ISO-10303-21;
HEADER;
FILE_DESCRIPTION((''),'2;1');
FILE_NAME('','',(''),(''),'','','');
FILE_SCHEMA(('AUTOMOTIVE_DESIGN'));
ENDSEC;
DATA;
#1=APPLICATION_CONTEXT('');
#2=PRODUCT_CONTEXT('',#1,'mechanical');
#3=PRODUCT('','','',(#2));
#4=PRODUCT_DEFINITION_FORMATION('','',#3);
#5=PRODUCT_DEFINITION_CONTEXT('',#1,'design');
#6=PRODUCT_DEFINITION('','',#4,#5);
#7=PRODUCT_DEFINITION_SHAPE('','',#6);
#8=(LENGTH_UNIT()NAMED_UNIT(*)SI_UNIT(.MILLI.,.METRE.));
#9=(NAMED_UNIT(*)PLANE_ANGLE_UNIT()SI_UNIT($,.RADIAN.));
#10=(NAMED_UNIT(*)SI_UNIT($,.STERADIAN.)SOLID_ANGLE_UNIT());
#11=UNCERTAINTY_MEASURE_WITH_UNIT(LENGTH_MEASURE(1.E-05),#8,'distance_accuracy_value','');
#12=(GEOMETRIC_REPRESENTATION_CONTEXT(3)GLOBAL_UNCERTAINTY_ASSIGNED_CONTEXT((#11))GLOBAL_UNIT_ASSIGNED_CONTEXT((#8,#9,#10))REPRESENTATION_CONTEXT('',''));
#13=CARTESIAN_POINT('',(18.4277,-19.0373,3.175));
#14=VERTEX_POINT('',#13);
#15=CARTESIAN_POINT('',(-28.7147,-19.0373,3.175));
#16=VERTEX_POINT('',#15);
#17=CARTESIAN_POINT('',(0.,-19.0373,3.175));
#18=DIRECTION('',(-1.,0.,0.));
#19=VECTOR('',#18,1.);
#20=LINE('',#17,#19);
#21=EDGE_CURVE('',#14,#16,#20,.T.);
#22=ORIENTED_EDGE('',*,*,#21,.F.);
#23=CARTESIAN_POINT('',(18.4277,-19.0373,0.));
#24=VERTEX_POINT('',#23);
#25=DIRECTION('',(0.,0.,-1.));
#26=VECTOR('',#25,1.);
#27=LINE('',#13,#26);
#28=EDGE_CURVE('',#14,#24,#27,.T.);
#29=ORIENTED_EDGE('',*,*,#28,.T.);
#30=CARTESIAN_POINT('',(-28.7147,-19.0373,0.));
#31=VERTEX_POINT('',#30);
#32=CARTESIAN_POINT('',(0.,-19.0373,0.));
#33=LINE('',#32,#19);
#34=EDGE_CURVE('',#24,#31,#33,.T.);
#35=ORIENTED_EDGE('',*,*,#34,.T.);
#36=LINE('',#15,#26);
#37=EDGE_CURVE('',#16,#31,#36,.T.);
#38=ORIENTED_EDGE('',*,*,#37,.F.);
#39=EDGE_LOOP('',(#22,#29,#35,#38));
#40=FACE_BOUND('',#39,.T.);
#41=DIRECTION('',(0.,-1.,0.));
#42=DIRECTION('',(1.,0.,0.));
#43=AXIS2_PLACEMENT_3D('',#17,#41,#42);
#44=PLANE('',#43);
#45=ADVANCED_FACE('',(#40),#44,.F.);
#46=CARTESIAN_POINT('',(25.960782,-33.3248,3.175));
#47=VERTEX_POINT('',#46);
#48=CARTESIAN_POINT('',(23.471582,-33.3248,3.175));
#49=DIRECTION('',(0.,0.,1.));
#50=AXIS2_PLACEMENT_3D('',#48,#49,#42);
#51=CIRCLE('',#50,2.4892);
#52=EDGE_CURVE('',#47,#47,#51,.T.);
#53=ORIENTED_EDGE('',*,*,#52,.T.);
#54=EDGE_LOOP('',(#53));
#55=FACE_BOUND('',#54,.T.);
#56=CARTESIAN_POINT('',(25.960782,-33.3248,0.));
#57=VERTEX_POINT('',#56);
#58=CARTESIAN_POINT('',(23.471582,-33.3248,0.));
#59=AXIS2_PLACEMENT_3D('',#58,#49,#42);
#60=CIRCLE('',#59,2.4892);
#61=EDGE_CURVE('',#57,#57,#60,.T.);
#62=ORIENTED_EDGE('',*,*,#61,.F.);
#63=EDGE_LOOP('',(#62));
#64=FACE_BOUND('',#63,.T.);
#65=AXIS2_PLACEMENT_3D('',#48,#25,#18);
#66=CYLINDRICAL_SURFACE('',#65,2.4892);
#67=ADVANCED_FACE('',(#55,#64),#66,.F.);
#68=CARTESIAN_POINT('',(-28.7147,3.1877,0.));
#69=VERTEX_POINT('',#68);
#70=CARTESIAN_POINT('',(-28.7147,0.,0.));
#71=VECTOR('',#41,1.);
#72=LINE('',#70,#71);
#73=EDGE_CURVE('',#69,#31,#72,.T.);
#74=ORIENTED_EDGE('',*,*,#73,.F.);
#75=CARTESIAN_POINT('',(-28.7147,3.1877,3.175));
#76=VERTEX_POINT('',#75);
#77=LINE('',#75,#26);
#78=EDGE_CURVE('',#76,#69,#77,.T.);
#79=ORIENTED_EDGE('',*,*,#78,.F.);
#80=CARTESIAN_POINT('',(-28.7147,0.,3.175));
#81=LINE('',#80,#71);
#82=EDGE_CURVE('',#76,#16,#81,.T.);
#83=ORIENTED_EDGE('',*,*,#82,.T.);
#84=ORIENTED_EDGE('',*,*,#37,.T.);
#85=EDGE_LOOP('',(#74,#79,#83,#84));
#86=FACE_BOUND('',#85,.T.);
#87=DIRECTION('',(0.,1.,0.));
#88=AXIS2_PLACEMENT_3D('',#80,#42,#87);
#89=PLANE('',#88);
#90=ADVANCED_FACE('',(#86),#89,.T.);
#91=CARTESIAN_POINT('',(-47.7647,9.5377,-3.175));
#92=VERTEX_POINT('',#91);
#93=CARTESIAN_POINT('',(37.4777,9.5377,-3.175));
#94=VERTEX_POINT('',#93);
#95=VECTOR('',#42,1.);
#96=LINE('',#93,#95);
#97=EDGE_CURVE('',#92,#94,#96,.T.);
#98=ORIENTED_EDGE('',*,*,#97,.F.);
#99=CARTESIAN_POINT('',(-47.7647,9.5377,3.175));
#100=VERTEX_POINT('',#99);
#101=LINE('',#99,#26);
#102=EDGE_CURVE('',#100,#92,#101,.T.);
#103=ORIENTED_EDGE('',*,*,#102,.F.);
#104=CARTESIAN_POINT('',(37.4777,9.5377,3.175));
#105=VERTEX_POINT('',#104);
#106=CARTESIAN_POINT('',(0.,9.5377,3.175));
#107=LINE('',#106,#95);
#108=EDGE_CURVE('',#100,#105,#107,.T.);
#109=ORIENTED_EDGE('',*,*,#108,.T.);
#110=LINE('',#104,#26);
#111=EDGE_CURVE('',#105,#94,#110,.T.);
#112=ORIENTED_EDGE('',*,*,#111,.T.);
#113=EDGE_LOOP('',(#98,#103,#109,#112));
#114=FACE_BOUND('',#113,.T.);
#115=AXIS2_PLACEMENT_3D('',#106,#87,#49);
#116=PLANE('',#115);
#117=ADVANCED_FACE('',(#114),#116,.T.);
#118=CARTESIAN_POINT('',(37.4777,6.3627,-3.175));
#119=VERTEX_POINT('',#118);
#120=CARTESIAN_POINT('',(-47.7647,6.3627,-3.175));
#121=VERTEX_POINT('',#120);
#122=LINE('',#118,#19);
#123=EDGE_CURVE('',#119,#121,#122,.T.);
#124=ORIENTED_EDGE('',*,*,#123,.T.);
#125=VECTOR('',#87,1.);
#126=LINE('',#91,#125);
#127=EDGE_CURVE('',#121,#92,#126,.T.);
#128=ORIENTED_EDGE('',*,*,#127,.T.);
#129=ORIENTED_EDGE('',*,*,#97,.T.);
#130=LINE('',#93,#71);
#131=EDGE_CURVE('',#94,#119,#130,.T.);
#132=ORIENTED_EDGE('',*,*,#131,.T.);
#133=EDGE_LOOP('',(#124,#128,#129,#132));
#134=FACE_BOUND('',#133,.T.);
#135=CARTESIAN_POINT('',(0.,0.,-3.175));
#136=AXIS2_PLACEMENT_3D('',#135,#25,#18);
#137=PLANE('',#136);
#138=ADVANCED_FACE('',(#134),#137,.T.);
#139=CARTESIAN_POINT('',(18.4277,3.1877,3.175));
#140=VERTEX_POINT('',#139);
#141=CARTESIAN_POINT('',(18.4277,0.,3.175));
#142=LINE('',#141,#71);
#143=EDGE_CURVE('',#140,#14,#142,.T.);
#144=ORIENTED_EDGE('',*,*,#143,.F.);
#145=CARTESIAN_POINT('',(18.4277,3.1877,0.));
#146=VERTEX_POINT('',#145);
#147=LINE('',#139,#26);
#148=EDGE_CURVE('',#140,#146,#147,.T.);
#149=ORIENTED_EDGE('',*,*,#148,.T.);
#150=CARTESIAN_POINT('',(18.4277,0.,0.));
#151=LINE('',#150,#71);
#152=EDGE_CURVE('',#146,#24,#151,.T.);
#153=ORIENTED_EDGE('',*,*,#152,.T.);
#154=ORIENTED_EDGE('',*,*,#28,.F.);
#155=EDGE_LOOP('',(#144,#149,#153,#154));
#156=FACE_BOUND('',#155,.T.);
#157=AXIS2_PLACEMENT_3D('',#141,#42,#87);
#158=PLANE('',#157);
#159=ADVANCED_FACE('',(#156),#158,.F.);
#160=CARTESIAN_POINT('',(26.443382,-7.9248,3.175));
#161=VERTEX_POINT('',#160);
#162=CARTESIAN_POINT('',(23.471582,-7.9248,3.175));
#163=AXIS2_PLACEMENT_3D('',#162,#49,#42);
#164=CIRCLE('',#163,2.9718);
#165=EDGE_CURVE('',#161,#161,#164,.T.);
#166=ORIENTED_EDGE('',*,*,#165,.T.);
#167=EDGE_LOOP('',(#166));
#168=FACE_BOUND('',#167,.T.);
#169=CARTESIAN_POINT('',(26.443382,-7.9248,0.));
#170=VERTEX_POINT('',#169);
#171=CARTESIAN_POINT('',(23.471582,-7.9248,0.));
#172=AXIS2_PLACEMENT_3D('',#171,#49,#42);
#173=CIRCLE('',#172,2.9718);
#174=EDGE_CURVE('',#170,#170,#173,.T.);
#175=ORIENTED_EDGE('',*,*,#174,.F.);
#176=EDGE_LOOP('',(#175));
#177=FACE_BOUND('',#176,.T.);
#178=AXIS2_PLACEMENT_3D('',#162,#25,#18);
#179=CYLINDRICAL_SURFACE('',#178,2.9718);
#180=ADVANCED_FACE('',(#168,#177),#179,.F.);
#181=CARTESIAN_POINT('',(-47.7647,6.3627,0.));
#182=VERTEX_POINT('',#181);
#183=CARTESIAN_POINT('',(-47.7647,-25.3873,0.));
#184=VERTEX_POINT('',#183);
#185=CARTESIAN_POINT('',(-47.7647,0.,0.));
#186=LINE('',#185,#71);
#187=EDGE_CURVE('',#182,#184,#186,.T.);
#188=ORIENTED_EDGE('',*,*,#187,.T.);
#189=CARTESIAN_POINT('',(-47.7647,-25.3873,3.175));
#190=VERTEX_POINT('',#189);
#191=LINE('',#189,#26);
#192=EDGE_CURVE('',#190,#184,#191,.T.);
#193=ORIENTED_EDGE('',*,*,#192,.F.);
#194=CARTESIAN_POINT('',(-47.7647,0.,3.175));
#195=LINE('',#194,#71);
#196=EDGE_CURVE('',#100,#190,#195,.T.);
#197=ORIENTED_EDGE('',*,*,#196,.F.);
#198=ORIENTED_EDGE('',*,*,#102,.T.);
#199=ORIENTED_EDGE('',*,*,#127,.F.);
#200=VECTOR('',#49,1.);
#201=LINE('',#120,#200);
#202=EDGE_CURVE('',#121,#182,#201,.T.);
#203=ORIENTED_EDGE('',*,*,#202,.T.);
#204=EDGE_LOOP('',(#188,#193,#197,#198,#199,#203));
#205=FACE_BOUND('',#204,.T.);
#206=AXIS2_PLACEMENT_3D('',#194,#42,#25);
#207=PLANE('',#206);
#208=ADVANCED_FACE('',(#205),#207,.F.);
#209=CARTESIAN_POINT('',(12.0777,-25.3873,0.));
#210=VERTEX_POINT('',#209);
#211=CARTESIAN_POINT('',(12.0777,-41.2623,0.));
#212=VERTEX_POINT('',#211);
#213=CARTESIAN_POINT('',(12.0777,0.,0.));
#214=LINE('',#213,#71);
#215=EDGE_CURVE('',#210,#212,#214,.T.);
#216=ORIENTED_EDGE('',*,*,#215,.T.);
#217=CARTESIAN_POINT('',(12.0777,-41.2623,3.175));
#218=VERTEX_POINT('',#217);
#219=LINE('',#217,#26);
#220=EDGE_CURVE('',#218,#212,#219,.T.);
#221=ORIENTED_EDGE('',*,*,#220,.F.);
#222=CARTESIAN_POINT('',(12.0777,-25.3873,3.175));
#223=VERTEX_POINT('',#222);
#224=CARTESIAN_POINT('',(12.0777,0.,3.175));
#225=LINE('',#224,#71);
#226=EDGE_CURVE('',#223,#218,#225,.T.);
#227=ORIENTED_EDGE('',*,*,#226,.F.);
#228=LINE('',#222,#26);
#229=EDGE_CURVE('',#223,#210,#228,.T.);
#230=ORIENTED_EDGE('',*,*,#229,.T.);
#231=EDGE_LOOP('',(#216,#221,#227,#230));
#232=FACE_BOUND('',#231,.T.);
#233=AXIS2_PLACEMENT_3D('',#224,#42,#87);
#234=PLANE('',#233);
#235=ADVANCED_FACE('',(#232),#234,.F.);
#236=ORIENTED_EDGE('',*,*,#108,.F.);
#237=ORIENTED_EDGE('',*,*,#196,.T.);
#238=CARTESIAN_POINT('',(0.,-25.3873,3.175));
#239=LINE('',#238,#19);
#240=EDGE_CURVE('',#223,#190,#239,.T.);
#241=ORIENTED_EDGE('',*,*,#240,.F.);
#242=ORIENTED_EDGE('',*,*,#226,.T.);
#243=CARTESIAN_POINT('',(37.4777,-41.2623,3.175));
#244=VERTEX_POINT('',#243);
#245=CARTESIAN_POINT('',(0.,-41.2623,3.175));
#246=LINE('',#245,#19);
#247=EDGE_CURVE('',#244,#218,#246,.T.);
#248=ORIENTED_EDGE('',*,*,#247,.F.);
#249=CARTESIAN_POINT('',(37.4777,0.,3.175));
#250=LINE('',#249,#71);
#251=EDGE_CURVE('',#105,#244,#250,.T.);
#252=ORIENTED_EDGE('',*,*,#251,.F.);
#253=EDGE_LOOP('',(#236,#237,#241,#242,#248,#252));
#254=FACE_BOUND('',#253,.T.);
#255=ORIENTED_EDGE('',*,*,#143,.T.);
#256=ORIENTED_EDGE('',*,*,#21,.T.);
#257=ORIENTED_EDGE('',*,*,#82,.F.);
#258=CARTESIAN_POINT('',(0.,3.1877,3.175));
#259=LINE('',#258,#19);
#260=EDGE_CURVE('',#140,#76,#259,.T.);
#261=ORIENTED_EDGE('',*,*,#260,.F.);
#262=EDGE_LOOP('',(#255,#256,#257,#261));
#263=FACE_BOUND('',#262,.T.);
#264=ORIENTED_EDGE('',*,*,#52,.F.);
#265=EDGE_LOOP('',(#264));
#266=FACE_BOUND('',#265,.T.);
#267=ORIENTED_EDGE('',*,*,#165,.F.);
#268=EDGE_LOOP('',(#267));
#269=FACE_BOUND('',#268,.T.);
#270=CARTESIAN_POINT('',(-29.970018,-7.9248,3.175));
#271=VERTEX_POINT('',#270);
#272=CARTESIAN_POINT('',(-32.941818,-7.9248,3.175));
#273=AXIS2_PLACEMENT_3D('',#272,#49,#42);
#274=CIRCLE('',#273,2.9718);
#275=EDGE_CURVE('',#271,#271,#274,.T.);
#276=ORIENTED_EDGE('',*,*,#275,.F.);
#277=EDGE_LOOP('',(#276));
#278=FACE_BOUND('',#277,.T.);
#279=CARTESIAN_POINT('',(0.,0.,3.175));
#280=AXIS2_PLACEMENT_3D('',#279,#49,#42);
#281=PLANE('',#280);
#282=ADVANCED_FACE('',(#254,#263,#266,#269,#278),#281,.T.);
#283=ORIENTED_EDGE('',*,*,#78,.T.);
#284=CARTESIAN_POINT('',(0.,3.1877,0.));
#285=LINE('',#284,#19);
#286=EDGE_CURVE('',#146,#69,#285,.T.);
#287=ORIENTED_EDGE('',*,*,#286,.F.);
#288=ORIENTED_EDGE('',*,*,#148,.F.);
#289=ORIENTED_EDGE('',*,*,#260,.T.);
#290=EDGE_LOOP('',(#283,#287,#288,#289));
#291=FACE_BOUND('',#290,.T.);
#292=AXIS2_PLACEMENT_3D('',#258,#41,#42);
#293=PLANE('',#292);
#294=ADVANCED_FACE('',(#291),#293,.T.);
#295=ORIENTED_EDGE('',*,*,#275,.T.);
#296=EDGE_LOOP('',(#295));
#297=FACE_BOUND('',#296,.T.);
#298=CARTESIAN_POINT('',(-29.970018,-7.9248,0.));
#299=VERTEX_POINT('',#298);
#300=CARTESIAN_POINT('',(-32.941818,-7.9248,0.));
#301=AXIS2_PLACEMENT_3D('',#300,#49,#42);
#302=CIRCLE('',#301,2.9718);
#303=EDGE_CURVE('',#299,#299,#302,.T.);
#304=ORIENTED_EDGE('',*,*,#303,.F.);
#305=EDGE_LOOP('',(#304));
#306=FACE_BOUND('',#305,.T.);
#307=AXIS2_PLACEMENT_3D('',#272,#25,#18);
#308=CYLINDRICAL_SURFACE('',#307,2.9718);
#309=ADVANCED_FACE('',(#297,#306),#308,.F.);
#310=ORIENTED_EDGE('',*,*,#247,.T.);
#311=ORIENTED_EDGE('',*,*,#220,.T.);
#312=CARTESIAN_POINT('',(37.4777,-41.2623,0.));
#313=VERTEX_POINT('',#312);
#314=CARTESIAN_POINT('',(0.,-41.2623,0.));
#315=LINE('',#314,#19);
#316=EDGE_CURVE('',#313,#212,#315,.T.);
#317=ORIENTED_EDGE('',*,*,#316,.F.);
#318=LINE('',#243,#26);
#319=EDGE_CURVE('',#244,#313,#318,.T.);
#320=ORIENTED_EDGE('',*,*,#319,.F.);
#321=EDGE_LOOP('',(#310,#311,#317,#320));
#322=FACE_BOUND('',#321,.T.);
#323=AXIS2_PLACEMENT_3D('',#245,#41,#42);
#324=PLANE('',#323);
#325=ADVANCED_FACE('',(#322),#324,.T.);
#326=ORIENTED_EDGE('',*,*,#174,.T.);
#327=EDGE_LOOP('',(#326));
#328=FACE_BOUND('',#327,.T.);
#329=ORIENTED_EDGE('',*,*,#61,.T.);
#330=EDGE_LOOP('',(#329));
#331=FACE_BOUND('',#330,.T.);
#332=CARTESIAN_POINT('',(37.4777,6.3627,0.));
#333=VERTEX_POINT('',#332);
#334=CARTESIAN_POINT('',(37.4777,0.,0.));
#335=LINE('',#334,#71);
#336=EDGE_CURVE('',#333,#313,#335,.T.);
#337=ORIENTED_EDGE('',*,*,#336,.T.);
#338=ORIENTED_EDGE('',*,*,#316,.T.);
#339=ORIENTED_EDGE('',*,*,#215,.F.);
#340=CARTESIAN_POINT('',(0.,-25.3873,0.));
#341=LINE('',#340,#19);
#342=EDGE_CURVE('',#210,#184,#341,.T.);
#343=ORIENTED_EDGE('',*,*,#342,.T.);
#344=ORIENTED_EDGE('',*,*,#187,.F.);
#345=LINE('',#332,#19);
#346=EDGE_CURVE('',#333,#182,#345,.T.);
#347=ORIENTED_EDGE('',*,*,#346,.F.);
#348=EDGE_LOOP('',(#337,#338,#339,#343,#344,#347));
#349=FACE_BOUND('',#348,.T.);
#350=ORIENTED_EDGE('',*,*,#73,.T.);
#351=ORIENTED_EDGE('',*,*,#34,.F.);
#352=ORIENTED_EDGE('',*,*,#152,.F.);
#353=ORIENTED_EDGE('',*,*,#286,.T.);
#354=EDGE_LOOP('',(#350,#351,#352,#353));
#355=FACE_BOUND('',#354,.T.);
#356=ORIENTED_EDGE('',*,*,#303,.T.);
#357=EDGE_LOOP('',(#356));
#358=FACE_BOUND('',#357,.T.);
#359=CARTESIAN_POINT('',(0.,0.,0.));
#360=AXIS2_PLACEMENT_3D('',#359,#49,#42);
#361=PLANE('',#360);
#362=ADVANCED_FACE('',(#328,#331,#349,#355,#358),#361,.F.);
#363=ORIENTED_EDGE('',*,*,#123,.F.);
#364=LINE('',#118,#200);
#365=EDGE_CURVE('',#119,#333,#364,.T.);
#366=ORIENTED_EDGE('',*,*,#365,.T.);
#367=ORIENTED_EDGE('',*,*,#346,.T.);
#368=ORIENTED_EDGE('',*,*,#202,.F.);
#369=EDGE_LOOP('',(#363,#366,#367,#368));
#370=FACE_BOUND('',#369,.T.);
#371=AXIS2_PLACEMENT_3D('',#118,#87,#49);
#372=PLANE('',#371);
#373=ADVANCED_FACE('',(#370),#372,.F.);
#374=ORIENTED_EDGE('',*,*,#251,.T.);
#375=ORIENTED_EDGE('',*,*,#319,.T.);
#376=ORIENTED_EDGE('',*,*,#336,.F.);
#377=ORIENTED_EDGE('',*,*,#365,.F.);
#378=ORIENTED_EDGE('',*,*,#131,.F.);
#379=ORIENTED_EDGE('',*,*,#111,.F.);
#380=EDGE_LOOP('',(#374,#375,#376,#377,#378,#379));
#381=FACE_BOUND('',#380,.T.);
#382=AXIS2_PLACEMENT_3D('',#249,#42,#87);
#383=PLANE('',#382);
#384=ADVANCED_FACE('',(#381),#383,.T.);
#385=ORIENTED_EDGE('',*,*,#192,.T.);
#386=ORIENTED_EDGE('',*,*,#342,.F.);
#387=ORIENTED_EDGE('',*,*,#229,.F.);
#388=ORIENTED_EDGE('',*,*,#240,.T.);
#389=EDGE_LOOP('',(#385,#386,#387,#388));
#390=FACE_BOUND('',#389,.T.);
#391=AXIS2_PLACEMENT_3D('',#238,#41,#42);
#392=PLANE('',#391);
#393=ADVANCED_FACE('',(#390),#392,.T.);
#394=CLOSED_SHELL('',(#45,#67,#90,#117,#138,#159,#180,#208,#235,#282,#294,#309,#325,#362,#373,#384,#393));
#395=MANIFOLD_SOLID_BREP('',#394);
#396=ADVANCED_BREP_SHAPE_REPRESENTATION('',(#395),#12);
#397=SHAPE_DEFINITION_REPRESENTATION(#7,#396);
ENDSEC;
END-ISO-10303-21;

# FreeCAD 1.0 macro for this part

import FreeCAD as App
import Part
import Sketcher
from FreeCAD import Vector
Q = App.Units.Quantity

doc = App.newDocument("Part")
params = doc.addObject("Spreadsheet::Sheet", "Params")
for row, (alias, value) in enumerate([
    ("sketch1_width", "1 in"),
    ("sketch1_height", "2 in"),
    ("sketch1_diameter", "0.196 in"),
    ("sketch1_diameter2", "0.234 in"),
    ("sketch1_width2", "3.356 in"),
    ("pad1_length", "0.125 in"),
    ("sketch2_width", "3.356 in"),
    ("sketch2_height", "0.125 in"),
    ("pad2_length", "0.125 in"),
], start=1):
    params.set(f"A{row}", alias)
    params.set(f"B{row}", "=" + value)
    params.setAlias(f"B{row}", alias)

body = doc.addObject("PartDesign::Body", "Body")

sketch1 = body.newObject("Sketcher::SketchObject", "Sketch")
sketch1.AttachmentSupport = (doc.getObject("XY_Plane"), [""])
sketch1.MapMode = "FlatFace"
sketch1.addGeometry(Part.LineSegment(Vector(37.5, 9.5, 0), Vector(-47.8, 9.5, 0)), False)
sketch1.addGeometry(Part.LineSegment(Vector(-47.8, 9.5, 0), Vector(-47.8, -25.4, 0)), False)
sketch1.addGeometry(Part.LineSegment(Vector(-47.8, -25.4, 0), Vector(12.1, -25.4, 0)), False)
sketch1.addGeometry(Part.LineSegment(Vector(12.1, -25.4, 0), Vector(12.1, -41.3, 0)), False)
sketch1.addGeometry(Part.LineSegment(Vector(12.1, -41.3, 0), Vector(37.5, -41.3, 0)), False)
sketch1.addGeometry(Part.LineSegment(Vector(37.5, -41.3, 0), Vector(37.5, 9.5, 0)), False)
sketch1.addGeometry(Part.Circle(Vector(23.5, -33.3, 0), Vector(0, 0, 1), 2.5), False)
sketch1.addGeometry(Part.Circle(Vector(-32.9, -7.9, 0), Vector(0, 0, 1), 3), False)
sketch1.addGeometry(Part.LineSegment(Vector(18.4, -19, 0), Vector(-28.7, -19, 0)), False)
sketch1.addGeometry(Part.LineSegment(Vector(-28.7, -19, 0), Vector(-28.7, 3.2, 0)), False)
sketch1.addGeometry(Part.LineSegment(Vector(-28.7, 3.2, 0), Vector(18.4, 3.2, 0)), False)
sketch1.addGeometry(Part.LineSegment(Vector(18.4, 3.2, 0), Vector(18.4, -19, 0)), False)
sketch1.addGeometry(Part.Circle(Vector(23.5, -7.9, 0), Vector(0, 0, 1), 3), False)
sketch1.addConstraint(Sketcher.Constraint("Coincident", 0, 2, 1, 1))
sketch1.addConstraint(Sketcher.Constraint("Coincident", 1, 2, 2, 1))
sketch1.addConstraint(Sketcher.Constraint("Coincident", 2, 2, 3, 1))
sketch1.addConstraint(Sketcher.Constraint("Coincident", 3, 2, 4, 1))
sketch1.addConstraint(Sketcher.Constraint("Coincident", 4, 2, 5, 1))
sketch1.addConstraint(Sketcher.Constraint("Coincident", 5, 2, 0, 1))
sketch1.addConstraint(Sketcher.Constraint("Coincident", 8, 2, 9, 1))
sketch1.addConstraint(Sketcher.Constraint("Coincident", 9, 2, 10, 1))
sketch1.addConstraint(Sketcher.Constraint("Coincident", 10, 2, 11, 1))
sketch1.addConstraint(Sketcher.Constraint("Coincident", 11, 2, 8, 1))
sketch1.addConstraint(Sketcher.Constraint("Horizontal", 0))
sketch1.addConstraint(Sketcher.Constraint("Vertical", 1))
sketch1.addConstraint(Sketcher.Constraint("Horizontal", 2))
sketch1.addConstraint(Sketcher.Constraint("Vertical", 3))
sketch1.addConstraint(Sketcher.Constraint("Horizontal", 4))
sketch1.addConstraint(Sketcher.Constraint("Vertical", 5))
sketch1.addConstraint(Sketcher.Constraint("Horizontal", 8))
sketch1.addConstraint(Sketcher.Constraint("Vertical", 9))
sketch1.addConstraint(Sketcher.Constraint("Horizontal", 10))
sketch1.addConstraint(Sketcher.Constraint("Vertical", 11))
sketch1.addConstraint(Sketcher.Constraint("Equal", 7, 12))
sketch1.addConstraint(Sketcher.Constraint("Horizontal", 7, 3, 12, 3))
sketch1.addConstraint(Sketcher.Constraint("Vertical", 6, 3, 12, 3))
sketch1.addConstraint(Sketcher.Constraint("DistanceX", 4, 1, 4, 2, Q("1 in")))
sketch1.addConstraint(Sketcher.Constraint("DistanceY", 5, 1, 5, 2, Q("2 in")))
sketch1.addConstraint(Sketcher.Constraint("Diameter", 6, Q("0.196 in")))
sketch1.addConstraint(Sketcher.Constraint("Diameter", 7, Q("0.234 in")))
sketch1.addConstraint(Sketcher.Constraint("DistanceY", 6, 3, 7, 3, Q("1 in")))
sketch1.addConstraint(Sketcher.Constraint("DistanceX", 0, 2, 0, 1, Q("3.356 in")))
sketch1.addConstraint(Sketcher.Constraint("DistanceX", 8, 2, 8, 1, Q("1.856 in")))
sketch1.addConstraint(Sketcher.Constraint("DistanceY", 1, 2, 1, 1, Q("1.375 in")))
sketch1.addConstraint(Sketcher.Constraint("DistanceY", 9, 1, 9, 2, Q("0.875 in")))
sketch1.addConstraint(Sketcher.Constraint("DistanceX", 1, 2, 8, 2, Q("0.75 in")))
sketch1.addConstraint(Sketcher.Constraint("DistanceY", 1, 2, 8, 2, Q("0.25 in")))
sketch1.addConstraint(Sketcher.Constraint("DistanceY", 6, 3, -1, 1, Q("1.312 in")))
sketch1.addConstraint(Sketcher.Constraint("DistanceX", 7, 3, 6, 3, Q("2.221 in")))
sketch1.addConstraint(Sketcher.Constraint("DistanceY", 7, 3, 0, 2, Q("0.6875 in")))
sketch1.addConstraint(Sketcher.Constraint("DistanceX", 0, 2, -1, 1, Q("1.8805 in")))
sketch1.addConstraint(Sketcher.Constraint("DistanceX", -1, 1, 6, 3, Q("23.471582 mm")))
sketch1.setExpression("Constraints[23]", "Params.sketch1_width")
sketch1.setExpression("Constraints[24]", "Params.sketch1_height")
sketch1.setExpression("Constraints[25]", "Params.sketch1_diameter")
sketch1.setExpression("Constraints[26]", "Params.sketch1_diameter2")
sketch1.setExpression("Constraints[28]", "Params.sketch1_width2")
pad1 = body.newObject("PartDesign::Pad", "Pad")
pad1.Profile = sketch1
pad1.setExpression("Length", "Params.pad1_length")

sketch2 = body.newObject("Sketcher::SketchObject", "Sketch001")
sketch2.AttachmentSupport = (doc.getObject("XY_Plane"), [""])
sketch2.MapMode = "FlatFace"
sketch2.addGeometry(Part.LineSegment(Vector(37.5, 9.5, 0), Vector(37.5, 6.4, 0)), False)
sketch2.addGeometry(Part.LineSegment(Vector(37.5, 6.4, 0), Vector(-47.8, 6.4, 0)), False)
sketch2.addGeometry(Part.LineSegment(Vector(-47.8, 6.4, 0), Vector(-47.8, 9.5, 0)), False)
sketch2.addGeometry(Part.LineSegment(Vector(-47.8, 9.5, 0), Vector(37.5, 9.5, 0)), False)
sketch2.addConstraint(Sketcher.Constraint("Coincident", 0, 2, 1, 1))
sketch2.addConstraint(Sketcher.Constraint("Coincident", 1, 2, 2, 1))
sketch2.addConstraint(Sketcher.Constraint("Coincident", 2, 2, 3, 1))
sketch2.addConstraint(Sketcher.Constraint("Coincident", 3, 2, 0, 1))
sketch2.addConstraint(Sketcher.Constraint("Vertical", 0))
sketch2.addConstraint(Sketcher.Constraint("Horizontal", 1))
sketch2.addConstraint(Sketcher.Constraint("Vertical", 2))
sketch2.addConstraint(Sketcher.Constraint("Horizontal", 3))
sketch2.addConstraint(Sketcher.Constraint("DistanceX", 1, 2, 1, 1, Q("3.356 in")))
sketch2.addConstraint(Sketcher.Constraint("DistanceY", 0, 2, 0, 1, Q("0.125 in")))
sketch2.addConstraint(Sketcher.Constraint("DistanceX", -1, 1, 0, 2, Q("1.4755 in")))
sketch2.addConstraint(Sketcher.Constraint("DistanceY", -1, 1, 0, 2, Q("0.2505 in")))
sketch2.setExpression("Constraints[8]", "Params.sketch2_width")
sketch2.setExpression("Constraints[9]", "Params.sketch2_height")
pad2 = body.newObject("PartDesign::Pad", "Pad001")
pad2.Profile = sketch2
pad2.setExpression("Length", "Params.pad2_length")
pad2.Reversed = True

doc.recompute()
